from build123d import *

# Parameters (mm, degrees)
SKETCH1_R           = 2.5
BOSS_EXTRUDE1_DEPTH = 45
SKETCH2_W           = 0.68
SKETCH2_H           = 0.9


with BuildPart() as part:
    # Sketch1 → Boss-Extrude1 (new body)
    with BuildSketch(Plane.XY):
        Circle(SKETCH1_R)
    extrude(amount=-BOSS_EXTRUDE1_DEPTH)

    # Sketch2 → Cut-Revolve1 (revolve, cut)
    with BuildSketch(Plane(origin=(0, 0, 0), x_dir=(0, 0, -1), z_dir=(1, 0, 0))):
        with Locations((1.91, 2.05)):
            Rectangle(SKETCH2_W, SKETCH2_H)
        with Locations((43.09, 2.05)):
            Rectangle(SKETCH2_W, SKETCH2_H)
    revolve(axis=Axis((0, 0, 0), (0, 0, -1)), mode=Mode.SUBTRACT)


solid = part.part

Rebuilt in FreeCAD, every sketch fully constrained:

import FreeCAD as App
import Part
import Sketcher

V = App.Vector
Q = App.Units.Quantity

doc = App.newDocument("Part")
body = doc.addObject("PartDesign::Body", "Body")

sketch1 = body.newObject("Sketcher::SketchObject", "Sketch")
sketch1.AttachmentSupport = (doc.getObject("XY_Plane"), [""])
sketch1.MapMode = "FlatFace"
sketch1.addGeometry(Part.Circle(V(0, 0, 0), V(0, 0, 1), 2.5), False)
sketch1.addConstraint(Sketcher.Constraint("Coincident", 0, 3, -1, 1))
sketch1.addConstraint(Sketcher.Constraint("Diameter", 0, Q("5 mm")))
pad1 = body.newObject("PartDesign::Pad", "Pad")
pad1.Profile = sketch1
pad1.Length = 45
pad1.Reversed = True

sketch2 = body.newObject("Sketcher::SketchObject", "Sketch001")
sketch2.AttachmentSupport = (doc.getObject("YZ_Plane"), [""])
sketch2.MapMode = "FlatFace"
sketch2.addGeometry(Part.LineSegment(V(2.5, -1.6, 0), V(1.6, -1.6, 0)), False)
sketch2.addGeometry(Part.LineSegment(V(1.6, -1.6, 0), V(1.6, -2.2, 0)), False)
sketch2.addGeometry(Part.LineSegment(V(1.6, -2.2, 0), V(2.5, -2.2, 0)), False)
sketch2.addGeometry(Part.LineSegment(V(2.5, -2.2, 0), V(2.5, -1.6, 0)), False)
sketch2.addGeometry(Part.LineSegment(V(2.5, -42.8, 0), V(1.6, -42.8, 0)), False)
sketch2.addGeometry(Part.LineSegment(V(1.6, -42.8, 0), V(1.6, -43.4, 0)), False)
sketch2.addGeometry(Part.LineSegment(V(1.6, -43.4, 0), V(2.5, -43.4, 0)), False)
sketch2.addGeometry(Part.LineSegment(V(2.5, -43.4, 0), V(2.5, -42.8, 0)), False)
sketch2.addConstraint(Sketcher.Constraint("Coincident", 0, 2, 1, 1))
sketch2.addConstraint(Sketcher.Constraint("Coincident", 1, 2, 2, 1))
sketch2.addConstraint(Sketcher.Constraint("Coincident", 2, 2, 3, 1))
sketch2.addConstraint(Sketcher.Constraint("Coincident", 3, 2, 0, 1))
sketch2.addConstraint(Sketcher.Constraint("Coincident", 4, 2, 5, 1))
sketch2.addConstraint(Sketcher.Constraint("Coincident", 5, 2, 6, 1))
sketch2.addConstraint(Sketcher.Constraint("Coincident", 6, 2, 7, 1))
sketch2.addConstraint(Sketcher.Constraint("Coincident", 7, 2, 4, 1))
sketch2.addConstraint(Sketcher.Constraint("Horizontal", 0))
sketch2.addConstraint(Sketcher.Constraint("Vertical", 1))
sketch2.addConstraint(Sketcher.Constraint("Horizontal", 2))
sketch2.addConstraint(Sketcher.Constraint("Vertical", 3))
sketch2.addConstraint(Sketcher.Constraint("Horizontal", 4))
sketch2.addConstraint(Sketcher.Constraint("Vertical", 5))
sketch2.addConstraint(Sketcher.Constraint("Horizontal", 6))
sketch2.addConstraint(Sketcher.Constraint("Vertical", 7))
sketch2.addConstraint(Sketcher.Constraint("Vertical", 1, 2, 4, 2))
sketch2.addConstraint(Sketcher.Constraint("Vertical", 3, 2, 6, 2))
sketch2.addConstraint(Sketcher.Constraint("Equal", 3, 5))
sketch2.addConstraint(Sketcher.Constraint("DistanceX", 0, 2, 0, 1, Q("0.9 mm")))
sketch2.addConstraint(Sketcher.Constraint("DistanceY", 1, 2, 1, 1, Q("0.68 mm")))
sketch2.addConstraint(Sketcher.Constraint("DistanceX", -1, 1, 0, 2, Q("1.6 mm")))
sketch2.addConstraint(Sketcher.Constraint("DistanceY", 4, 2, 1, 2, Q("40.5 mm")))
sketch2.addConstraint(Sketcher.Constraint("DistanceY", 0, 2, -1, 1, Q("1.57 mm")))
groove = body.newObject("PartDesign::Groove", "Groove")
groove.Profile = sketch2
groove.ReferenceAxis = (sketch2, ["V_Axis"])
groove.Angle = 360

doc.recompute()
